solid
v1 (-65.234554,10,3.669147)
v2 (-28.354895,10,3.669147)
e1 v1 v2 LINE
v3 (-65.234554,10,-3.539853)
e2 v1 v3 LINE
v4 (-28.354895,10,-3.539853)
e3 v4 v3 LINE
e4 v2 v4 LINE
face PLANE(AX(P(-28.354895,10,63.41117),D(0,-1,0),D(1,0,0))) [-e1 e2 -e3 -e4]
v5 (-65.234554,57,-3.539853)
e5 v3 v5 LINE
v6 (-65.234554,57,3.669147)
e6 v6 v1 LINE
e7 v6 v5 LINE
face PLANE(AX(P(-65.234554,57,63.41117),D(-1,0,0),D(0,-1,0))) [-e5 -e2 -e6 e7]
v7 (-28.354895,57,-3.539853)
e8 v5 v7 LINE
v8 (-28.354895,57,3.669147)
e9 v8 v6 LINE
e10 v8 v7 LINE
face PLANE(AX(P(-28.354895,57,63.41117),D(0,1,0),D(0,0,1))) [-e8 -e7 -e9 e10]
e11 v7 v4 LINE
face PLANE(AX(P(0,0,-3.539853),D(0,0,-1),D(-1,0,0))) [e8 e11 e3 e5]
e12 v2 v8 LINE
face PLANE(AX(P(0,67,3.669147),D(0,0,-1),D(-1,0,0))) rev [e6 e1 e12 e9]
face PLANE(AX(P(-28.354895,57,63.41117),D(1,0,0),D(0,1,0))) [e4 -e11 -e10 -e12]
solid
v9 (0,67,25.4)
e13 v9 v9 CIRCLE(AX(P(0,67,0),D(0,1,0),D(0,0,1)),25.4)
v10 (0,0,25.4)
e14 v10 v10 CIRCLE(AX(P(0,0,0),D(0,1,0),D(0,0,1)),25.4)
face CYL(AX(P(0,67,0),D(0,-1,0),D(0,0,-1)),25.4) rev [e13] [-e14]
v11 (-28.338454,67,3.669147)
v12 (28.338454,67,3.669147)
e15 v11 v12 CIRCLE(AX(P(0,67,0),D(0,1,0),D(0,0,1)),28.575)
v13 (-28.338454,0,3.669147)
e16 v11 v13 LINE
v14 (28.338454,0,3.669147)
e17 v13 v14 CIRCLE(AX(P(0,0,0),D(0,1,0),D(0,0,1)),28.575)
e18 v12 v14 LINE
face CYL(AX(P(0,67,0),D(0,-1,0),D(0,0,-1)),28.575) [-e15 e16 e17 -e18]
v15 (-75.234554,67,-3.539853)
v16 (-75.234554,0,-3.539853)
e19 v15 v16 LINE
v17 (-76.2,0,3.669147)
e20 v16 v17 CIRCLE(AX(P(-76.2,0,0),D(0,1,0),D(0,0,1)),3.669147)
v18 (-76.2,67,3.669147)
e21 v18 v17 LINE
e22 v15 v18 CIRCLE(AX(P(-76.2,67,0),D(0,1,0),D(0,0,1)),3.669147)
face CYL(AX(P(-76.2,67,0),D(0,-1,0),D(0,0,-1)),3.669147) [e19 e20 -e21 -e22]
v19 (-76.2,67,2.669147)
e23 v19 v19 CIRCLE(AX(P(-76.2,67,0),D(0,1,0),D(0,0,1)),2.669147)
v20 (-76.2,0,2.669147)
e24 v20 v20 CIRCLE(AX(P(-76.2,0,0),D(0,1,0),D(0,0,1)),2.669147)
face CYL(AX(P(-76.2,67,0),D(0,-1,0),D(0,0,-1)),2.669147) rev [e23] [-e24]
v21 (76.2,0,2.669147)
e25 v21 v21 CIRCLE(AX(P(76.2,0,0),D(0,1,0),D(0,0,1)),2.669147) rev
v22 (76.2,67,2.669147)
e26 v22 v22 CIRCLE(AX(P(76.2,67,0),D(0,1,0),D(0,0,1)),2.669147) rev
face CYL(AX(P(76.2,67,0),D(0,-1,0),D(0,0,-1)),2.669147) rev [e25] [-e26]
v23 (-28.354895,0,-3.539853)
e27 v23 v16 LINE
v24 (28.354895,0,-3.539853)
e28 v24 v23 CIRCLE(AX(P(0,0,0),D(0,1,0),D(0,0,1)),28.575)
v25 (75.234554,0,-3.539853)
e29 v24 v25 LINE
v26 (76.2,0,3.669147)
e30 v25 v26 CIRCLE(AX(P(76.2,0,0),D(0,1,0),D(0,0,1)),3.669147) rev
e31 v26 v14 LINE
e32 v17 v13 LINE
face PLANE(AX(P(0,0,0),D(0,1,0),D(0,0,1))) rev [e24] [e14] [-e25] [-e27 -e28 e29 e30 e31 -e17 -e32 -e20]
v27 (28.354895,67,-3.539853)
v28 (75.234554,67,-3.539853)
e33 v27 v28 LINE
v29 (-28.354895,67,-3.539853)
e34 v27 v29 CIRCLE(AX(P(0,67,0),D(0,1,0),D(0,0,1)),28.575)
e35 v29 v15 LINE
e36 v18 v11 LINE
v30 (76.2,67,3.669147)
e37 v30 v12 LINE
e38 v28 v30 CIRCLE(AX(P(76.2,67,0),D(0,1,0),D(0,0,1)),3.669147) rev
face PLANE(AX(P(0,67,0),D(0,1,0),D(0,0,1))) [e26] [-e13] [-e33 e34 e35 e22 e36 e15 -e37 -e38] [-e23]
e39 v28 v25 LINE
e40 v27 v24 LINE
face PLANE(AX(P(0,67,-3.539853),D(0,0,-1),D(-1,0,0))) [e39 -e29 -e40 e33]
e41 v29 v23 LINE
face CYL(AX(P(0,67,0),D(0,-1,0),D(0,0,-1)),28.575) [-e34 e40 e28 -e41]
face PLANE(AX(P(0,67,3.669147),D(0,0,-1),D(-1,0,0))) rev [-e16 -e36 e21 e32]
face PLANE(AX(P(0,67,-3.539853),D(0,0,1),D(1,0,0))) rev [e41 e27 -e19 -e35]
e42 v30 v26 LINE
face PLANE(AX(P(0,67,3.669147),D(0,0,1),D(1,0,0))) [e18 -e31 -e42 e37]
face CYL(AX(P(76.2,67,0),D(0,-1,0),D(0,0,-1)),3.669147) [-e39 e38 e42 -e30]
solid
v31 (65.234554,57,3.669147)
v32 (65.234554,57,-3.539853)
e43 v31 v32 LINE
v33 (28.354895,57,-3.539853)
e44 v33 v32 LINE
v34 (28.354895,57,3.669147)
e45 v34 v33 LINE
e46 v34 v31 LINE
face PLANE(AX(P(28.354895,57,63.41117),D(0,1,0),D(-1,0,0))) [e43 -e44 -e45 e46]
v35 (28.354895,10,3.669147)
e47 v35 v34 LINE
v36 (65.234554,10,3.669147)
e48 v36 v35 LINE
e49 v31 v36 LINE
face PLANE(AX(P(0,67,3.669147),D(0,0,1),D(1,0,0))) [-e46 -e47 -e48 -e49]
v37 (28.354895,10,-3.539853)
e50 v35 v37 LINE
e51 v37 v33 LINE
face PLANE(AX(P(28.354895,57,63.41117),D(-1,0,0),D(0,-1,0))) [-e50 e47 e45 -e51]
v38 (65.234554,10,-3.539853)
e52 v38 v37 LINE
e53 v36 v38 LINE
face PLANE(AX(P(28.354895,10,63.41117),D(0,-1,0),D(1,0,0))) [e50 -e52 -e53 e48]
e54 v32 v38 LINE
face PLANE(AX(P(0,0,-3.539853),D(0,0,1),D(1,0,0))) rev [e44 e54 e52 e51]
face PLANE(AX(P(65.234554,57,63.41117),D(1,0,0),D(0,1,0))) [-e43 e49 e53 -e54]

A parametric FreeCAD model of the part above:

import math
import FreeCAD as App
import Part
import Sketcher

V = App.Vector


def add_polygon(sketch, points):
    """Adds a closed chain of lines whose ends are joined by coincident constraints."""
    first, n = sketch.GeometryCount, len(points)
    for a, b in zip(points, points[1:] + points[:1]):
        sketch.addGeometry(Part.LineSegment(App.Vector(*a, 0), App.Vector(*b, 0)), False)
    for i in range(n):
        sketch.addConstraint(Sketcher.Constraint("Coincident", first + i, 2, first + (i + 1) % n, 1))

doc = App.newDocument("Part")
params = doc.addObject("Spreadsheet::Sheet", "Params")
for row, (alias, value) in enumerate([
    ("sketch1_diameter", "50.8 mm"),
    ("pad1_length", "67 mm"),
    ("sketch2_height", "47 mm"),
    ("pad2_length", "7.209 mm"),
    ("sketch3_height", "47 mm"),
    ("pad3_length", "7.209 mm"),
], start=1):
    params.set(f"A{row}", alias)
    params.set(f"B{row}", "=" + value)
    params.setAlias(f"B{row}", alias)

body = doc.addObject("PartDesign::Body", "Body")

# Sketch on XZ plane
sketch1 = body.newObject("Sketcher::SketchObject", "Sketch")
sketch1.AttachmentSupport = (doc.getObject("XZ_Plane"), [""])
sketch1.MapMode = "FlatFace"
sketch1.addGeometry(Part.ArcOfCircle(Part.Circle(V(76.2, 0, 0), V(0, 0, 1), 3.7), math.radians(-105), math.radians(90)), False)
sketch1.addGeometry(Part.LineSegment(V(75.2, -3.5, 0), V(28.4, -3.5, 0)), False)
sketch1.addGeometry(Part.ArcOfCircle(Part.Circle(V(0, 0, 0), V(0, 0, 1), 28.6), math.radians(-173), math.radians(-7)), False)
sketch1.addGeometry(Part.LineSegment(V(-28.4, -3.5, 0), V(-75.2, -3.5, 0)), False)
sketch1.addGeometry(Part.ArcOfCircle(Part.Circle(V(-76.2, 0, 0), V(0, 0, 1), 3.7), math.radians(90), math.radians(285)), False)
sketch1.addGeometry(Part.LineSegment(V(-76.2, 3.7, 0), V(-28.3, 3.7, 0)), False)
sketch1.addGeometry(Part.ArcOfCircle(Part.Circle(V(0, 0, 0), V(0, 0, 1), 28.6), math.radians(7), math.radians(173)), False)
sketch1.addGeometry(Part.LineSegment(V(28.3, 3.7, 0), V(76.2, 3.7, 0)), False)
sketch1.addGeometry(Part.Circle(V(-76.2, 0, 0), V(0, 0, 1), 2.7), False)
sketch1.addGeometry(Part.Circle(V(0, 0, 0), V(0, 0, 1), 25.4), False)
sketch1.addGeometry(Part.Circle(V(76.2, 0, 0), V(0, 0, 1), 2.7), False)
sketch1.addConstraint(Sketcher.Constraint("Coincident", 0, 1, 1, 1))
sketch1.addConstraint(Sketcher.Constraint("Coincident", 1, 2, 2, 2))
sketch1.addConstraint(Sketcher.Constraint("Coincident", 2, 1, 3, 1))
sketch1.addConstraint(Sketcher.Constraint("Coincident", 3, 2, 4, 2))
sketch1.addConstraint(Sketcher.Constraint("Tangent", 4, 1, 5, 1))
sketch1.addConstraint(Sketcher.Constraint("Coincident", 5, 2, 6, 2))
sketch1.addConstraint(Sketcher.Constraint("Coincident", 6, 1, 7, 1))
sketch1.addConstraint(Sketcher.Constraint("Tangent", 7, 2, 0, 2))
sketch1.addConstraint(Sketcher.Constraint("Horizontal", 1))
sketch1.addConstraint(Sketcher.Constraint("Horizontal", 3))
sketch1.addConstraint(Sketcher.Constraint("Horizontal", 5))
sketch1.addConstraint(Sketcher.Constraint("Horizontal", 7))
sketch1.addConstraint(Sketcher.Constraint("Coincident", 2, 3, -1, 1))
sketch1.addConstraint(Sketcher.Constraint("Coincident", 6, 3, -1, 1))
sketch1.addConstraint(Sketcher.Constraint("Coincident", 9, 3, -1, 1))
sketch1.addConstraint(Sketcher.Constraint("Coincident", 8, 3, 4, 3))
sketch1.addConstraint(Sketcher.Constraint("Coincident", 10, 3, 0, 3))
sketch1.addConstraint(Sketcher.Constraint("Equal", 0, 4))
sketch1.addConstraint(Sketcher.Constraint("Equal", 2, 6))
sketch1.addConstraint(Sketcher.Constraint("Equal", 8, 10))
sketch1.addConstraint(Sketcher.Constraint("Symmetric", 0, 3, 4, 3, -1, 1))
sketch1.addConstraint(Sketcher.Constraint("Symmetric", 0, 1, 3, 2, -2))
sketch1.addConstraint(Sketcher.Constraint("Diameter", 9, 50.8))
sketch1.addConstraint(Sketcher.Constraint("Radius", 2, 28.575))
sketch1.addConstraint(Sketcher.Constraint("DistanceX", -1, 1, 0, 3, 76.2))
sketch1.addConstraint(Sketcher.Constraint("Diameter", 8, 5.338295))
sketch1.addConstraint(Sketcher.Constraint("Radius", 0, 3.669147))
sketch1.addConstraint(Sketcher.Constraint("DistanceY", 3, 2, 4, 1, 7.209))
sketch1.setExpression("Constraints[22]", "Params.sketch1_diameter")
pad1 = body.newObject("PartDesign::Pad", "Pad")
pad1.Profile = sketch1
pad1.setExpression("Length", "Params.pad1_length")
pad1.Reversed = True
body2 = doc.addObject("PartDesign::Body", "Body001")

# Sketch on XY plane
sketch2 = body2.newObject("Sketcher::SketchObject", "Sketch001")
sketch2.AttachmentSupport = (doc.getObject("XY_Plane001"), [""])
sketch2.MapMode = "FlatFace"
sketch2.AttachmentOffset = App.Placement(V(0, 0, -3.539853), App.Rotation())
add_polygon(sketch2, [(-28, 57), (-28, 10), (-65, 10), (-65, 57)])  # lines 0-3
sketch2.addConstraint(Sketcher.Constraint("Vertical", 0))
sketch2.addConstraint(Sketcher.Constraint("Horizontal", 1))
sketch2.addConstraint(Sketcher.Constraint("Vertical", 2))
sketch2.addConstraint(Sketcher.Constraint("Horizontal", 3))
sketch2.addConstraint(Sketcher.Constraint("DistanceY", 0, 2, 0, 1, 47.0))
sketch2.addConstraint(Sketcher.Constraint("DistanceY", -1, 1, 0, 2, 10.0))
sketch2.addConstraint(Sketcher.Constraint("DistanceX", 1, 2, 1, 1, 36.879659))
sketch2.addConstraint(Sketcher.Constraint("DistanceX", 0, 2, -1, 1, 28.354895))
sketch2.setExpression("Constraints[8]", "Params.sketch2_height")
pad2 = body2.newObject("PartDesign::Pad", "Pad001")
pad2.Profile = sketch2
pad2.setExpression("Length", "Params.pad2_length")
body3 = doc.addObject("PartDesign::Body", "Body002")

# Sketch on XY plane
sketch3 = body3.newObject("Sketcher::SketchObject", "Sketch002")
sketch3.AttachmentSupport = (doc.getObject("XY_Plane002"), [""])
sketch3.MapMode = "FlatFace"
sketch3.AttachmentOffset = App.Placement(V(0, 0, -3.539853), App.Rotation())
add_polygon(sketch3, [(65, 57), (65, 10), (28, 10), (28, 57)])  # lines 0-3
sketch3.addConstraint(Sketcher.Constraint("Vertical", 0))
sketch3.addConstraint(Sketcher.Constraint("Horizontal", 1))
sketch3.addConstraint(Sketcher.Constraint("Vertical", 2))
sketch3.addConstraint(Sketcher.Constraint("Horizontal", 3))
sketch3.addConstraint(Sketcher.Constraint("DistanceY", 0, 2, 0, 1, 47.0))
sketch3.addConstraint(Sketcher.Constraint("DistanceY", -1, 1, 0, 2, 10.0))
sketch3.addConstraint(Sketcher.Constraint("DistanceX", 1, 2, 1, 1, 36.879659))
sketch3.addConstraint(Sketcher.Constraint("DistanceX", -1, 1, 0, 2, 65.234554))
sketch3.setExpression("Constraints[8]", "Params.sketch3_height")
pad3 = body3.newObject("PartDesign::Pad", "Pad002")
pad3.Profile = sketch3
pad3.setExpression("Length", "Params.pad3_length")

doc.recompute()
